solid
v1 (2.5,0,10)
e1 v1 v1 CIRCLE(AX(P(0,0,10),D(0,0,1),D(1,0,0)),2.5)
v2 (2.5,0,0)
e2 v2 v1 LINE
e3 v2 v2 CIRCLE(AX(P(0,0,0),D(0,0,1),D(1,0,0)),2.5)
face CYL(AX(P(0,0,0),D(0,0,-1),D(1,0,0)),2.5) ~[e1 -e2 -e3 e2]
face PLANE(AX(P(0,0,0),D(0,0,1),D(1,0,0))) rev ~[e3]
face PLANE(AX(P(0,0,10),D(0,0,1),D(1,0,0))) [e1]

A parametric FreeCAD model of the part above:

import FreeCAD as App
import Part
import Sketcher
from FreeCAD import Vector
Q = App.Units.Quantity

doc = App.newDocument("Part")
body = doc.addObject("PartDesign::Body", "Body")

sketch1 = doc.addObject("Sketcher::SketchObject", "Sketch")
body.addObject(sketch1)
sketch1.AttachmentSupport = (doc.XY_Plane, [""])
sketch1.MapMode = "FlatFace"
sketch1.addGeometry(Part.Circle(Vector(0, 0, 0), Vector(0, 0, 1), 2.5), False)
sketch1.addConstraint([
    Sketcher.Constraint("Coincident", 0, 3, -1, 1),
    Sketcher.Constraint("Diameter", 0, Q("5 mm")),
])
pad1 = doc.addObject("PartDesign::Pad", "Pad")
body.addObject(pad1)
pad1.Profile = sketch1
pad1.Length = 10

doc.recompute()
